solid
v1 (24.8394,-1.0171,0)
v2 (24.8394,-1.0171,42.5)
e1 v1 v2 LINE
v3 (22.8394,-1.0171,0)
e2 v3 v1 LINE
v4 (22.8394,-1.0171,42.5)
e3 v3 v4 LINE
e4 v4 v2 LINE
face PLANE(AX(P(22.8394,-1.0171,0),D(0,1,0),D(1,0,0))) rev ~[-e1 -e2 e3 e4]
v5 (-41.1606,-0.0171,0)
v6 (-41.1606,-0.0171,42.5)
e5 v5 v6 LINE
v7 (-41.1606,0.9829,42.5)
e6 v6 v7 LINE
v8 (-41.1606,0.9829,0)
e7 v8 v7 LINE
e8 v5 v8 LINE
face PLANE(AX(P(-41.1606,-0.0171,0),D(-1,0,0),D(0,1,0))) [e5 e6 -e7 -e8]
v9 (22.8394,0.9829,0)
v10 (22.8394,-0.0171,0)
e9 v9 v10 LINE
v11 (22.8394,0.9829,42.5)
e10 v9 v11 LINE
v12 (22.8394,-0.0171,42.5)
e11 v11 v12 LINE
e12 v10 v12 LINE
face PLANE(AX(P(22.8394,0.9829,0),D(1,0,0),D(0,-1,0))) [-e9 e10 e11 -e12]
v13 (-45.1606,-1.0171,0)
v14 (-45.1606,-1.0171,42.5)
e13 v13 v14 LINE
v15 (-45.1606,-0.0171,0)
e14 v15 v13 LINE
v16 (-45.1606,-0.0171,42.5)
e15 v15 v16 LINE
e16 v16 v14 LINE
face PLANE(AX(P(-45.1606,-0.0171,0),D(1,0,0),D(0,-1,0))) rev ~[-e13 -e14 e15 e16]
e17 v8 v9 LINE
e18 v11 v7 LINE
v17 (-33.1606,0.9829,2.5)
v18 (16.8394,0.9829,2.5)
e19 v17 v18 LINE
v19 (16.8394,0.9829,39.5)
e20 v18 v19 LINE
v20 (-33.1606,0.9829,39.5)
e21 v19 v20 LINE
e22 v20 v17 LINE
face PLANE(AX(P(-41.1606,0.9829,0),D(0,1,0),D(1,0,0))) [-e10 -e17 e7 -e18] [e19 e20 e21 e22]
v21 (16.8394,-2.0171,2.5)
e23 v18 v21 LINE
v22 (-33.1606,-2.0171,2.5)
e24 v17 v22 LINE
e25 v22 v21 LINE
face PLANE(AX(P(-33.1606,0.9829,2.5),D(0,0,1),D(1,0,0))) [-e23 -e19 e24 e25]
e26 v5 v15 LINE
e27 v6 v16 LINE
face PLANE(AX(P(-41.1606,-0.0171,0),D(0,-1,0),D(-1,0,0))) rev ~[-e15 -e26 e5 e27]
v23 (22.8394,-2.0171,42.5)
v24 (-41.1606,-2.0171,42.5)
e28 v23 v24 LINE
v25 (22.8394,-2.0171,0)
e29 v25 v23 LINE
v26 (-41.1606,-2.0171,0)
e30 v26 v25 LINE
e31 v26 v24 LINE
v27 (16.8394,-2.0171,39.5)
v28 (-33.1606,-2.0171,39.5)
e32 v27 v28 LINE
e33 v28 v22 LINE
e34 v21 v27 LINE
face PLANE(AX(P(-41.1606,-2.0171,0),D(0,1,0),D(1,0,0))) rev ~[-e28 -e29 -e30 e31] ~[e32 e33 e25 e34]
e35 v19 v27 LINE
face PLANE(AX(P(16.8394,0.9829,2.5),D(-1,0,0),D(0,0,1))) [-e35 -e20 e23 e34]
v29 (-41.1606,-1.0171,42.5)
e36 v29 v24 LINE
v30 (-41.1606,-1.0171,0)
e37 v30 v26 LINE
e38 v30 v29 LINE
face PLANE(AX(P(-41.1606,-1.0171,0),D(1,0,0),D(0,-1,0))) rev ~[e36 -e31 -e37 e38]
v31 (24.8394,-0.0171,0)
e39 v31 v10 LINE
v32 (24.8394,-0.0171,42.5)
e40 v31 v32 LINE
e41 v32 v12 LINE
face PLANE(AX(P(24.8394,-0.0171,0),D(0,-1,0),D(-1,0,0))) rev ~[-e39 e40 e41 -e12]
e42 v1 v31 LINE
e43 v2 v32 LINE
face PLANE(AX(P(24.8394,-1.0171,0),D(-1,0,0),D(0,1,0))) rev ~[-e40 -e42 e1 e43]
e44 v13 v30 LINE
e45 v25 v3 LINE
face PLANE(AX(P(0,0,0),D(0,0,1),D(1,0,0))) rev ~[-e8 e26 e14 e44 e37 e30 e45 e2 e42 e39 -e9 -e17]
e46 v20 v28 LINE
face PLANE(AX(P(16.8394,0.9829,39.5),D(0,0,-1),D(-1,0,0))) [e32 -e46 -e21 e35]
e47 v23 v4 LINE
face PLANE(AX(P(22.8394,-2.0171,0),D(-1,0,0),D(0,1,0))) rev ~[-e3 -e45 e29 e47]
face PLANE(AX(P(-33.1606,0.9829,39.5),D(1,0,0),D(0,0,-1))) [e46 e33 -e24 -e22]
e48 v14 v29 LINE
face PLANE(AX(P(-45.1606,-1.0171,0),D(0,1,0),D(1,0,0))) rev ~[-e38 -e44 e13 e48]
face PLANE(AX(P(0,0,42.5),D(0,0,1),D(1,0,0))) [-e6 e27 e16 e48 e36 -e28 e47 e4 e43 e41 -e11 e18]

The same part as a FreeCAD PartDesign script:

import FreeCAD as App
import Part
import Sketcher

V = App.Vector

doc = App.newDocument("Part")
body = doc.addObject("PartDesign::Body", "Body")

sketch1 = doc.addObject("Sketcher::SketchObject", "Sketch")
body.addObject(sketch1)
sketch1.AttachmentSupport = (doc.XY_Plane, [""])
sketch1.MapMode = "FlatFace"
sketch1.addGeometry(Part.LineSegment(V(-41.1606, -2.0171, 0), V(22.8394, -2.0171, 0)), False)
sketch1.addGeometry(Part.LineSegment(V(22.8394, -2.0171, 0), V(22.8394, -1.0171, 0)), False)
sketch1.addGeometry(Part.LineSegment(V(22.8394, -1.0171, 0), V(24.8394, -1.0171, 0)), False)
sketch1.addGeometry(Part.LineSegment(V(24.8394, -1.0171, 0), V(24.8394, -0.0171, 0)), False)
sketch1.addGeometry(Part.LineSegment(V(24.8394, -0.0171, 0), V(22.8394, -0.0171, 0)), False)
sketch1.addGeometry(Part.LineSegment(V(22.8394, -0.0171, 0), V(22.8394, 0.9829, 0)), False)
sketch1.addGeometry(Part.LineSegment(V(22.8394, 0.9829, 0), V(-41.1606, 0.9829, 0)), False)
sketch1.addGeometry(Part.LineSegment(V(-41.1606, 0.9829, 0), V(-41.1606, -0.0171, 0)), False)
sketch1.addGeometry(Part.LineSegment(V(-41.1606, -0.0171, 0), V(-45.1606, -0.0171, 0)), False)
sketch1.addGeometry(Part.LineSegment(V(-45.1606, -0.0171, 0), V(-45.1606, -1.0171, 0)), False)
sketch1.addGeometry(Part.LineSegment(V(-45.1606, -1.0171, 0), V(-41.1606, -1.0171, 0)), False)
sketch1.addGeometry(Part.LineSegment(V(-41.1606, -1.0171, 0), V(-41.1606, -2.0171, 0)), False)
sketch1.addConstraint(Sketcher.Constraint("Coincident", 0, 2, 1, 1))
sketch1.addConstraint(Sketcher.Constraint("Coincident", 1, 2, 2, 1))
sketch1.addConstraint(Sketcher.Constraint("Coincident", 2, 2, 3, 1))
sketch1.addConstraint(Sketcher.Constraint("Coincident", 3, 2, 4, 1))
sketch1.addConstraint(Sketcher.Constraint("Coincident", 4, 2, 5, 1))
sketch1.addConstraint(Sketcher.Constraint("Coincident", 5, 2, 6, 1))
sketch1.addConstraint(Sketcher.Constraint("Coincident", 6, 2, 7, 1))
sketch1.addConstraint(Sketcher.Constraint("Coincident", 7, 2, 8, 1))
sketch1.addConstraint(Sketcher.Constraint("Coincident", 8, 2, 9, 1))
sketch1.addConstraint(Sketcher.Constraint("Coincident", 9, 2, 10, 1))
sketch1.addConstraint(Sketcher.Constraint("Coincident", 10, 2, 11, 1))
sketch1.addConstraint(Sketcher.Constraint("Coincident", 11, 2, 0, 1))
sketch1.addConstraint(Sketcher.Constraint("Horizontal", 0))
sketch1.addConstraint(Sketcher.Constraint("Vertical", 1))
sketch1.addConstraint(Sketcher.Constraint("Horizontal", 2))
sketch1.addConstraint(Sketcher.Constraint("Vertical", 3))
sketch1.addConstraint(Sketcher.Constraint("Horizontal", 4))
sketch1.addConstraint(Sketcher.Constraint("Vertical", 5))
sketch1.addConstraint(Sketcher.Constraint("Horizontal", 6))
sketch1.addConstraint(Sketcher.Constraint("Vertical", 7))
sketch1.addConstraint(Sketcher.Constraint("Horizontal", 8))
sketch1.addConstraint(Sketcher.Constraint("Vertical", 9))
sketch1.addConstraint(Sketcher.Constraint("Horizontal", 10))
sketch1.addConstraint(Sketcher.Constraint("Vertical", 11))
sketch1.addConstraint(Sketcher.Constraint("Horizontal", 4, 2, 7, 2))
sketch1.addConstraint(Sketcher.Constraint("Horizontal", 2, 2, 9, 2))
sketch1.addConstraint(Sketcher.Constraint("Vertical", 1, 2, 4, 2))
sketch1.addConstraint(Sketcher.Constraint("Vertical", 7, 2, 10, 2))
sketch1.addConstraint(Sketcher.Constraint("Equal", 1, 3))
sketch1.addConstraint(Sketcher.Constraint("Equal", 3, 5))
sketch1.addConstraint(Sketcher.Constraint("DistanceX", 0, 1, 0, 2, 64.0))
sketch1.addConstraint(Sketcher.Constraint("DistanceX", 2, 1, 2, 2, 2.0))
sketch1.addConstraint(Sketcher.Constraint("DistanceY", 1, 1, 1, 2, 1.0))
sketch1.addConstraint(Sketcher.Constraint("DistanceX", 8, 2, 8, 1, 4.0))
sketch1.addConstraint(Sketcher.Constraint("DistanceY", 0, 2, -1, 1, 2.017))
sketch1.addConstraint(Sketcher.Constraint("DistanceX", -1, 1, 0, 2, 22.8394))
pad1 = doc.addObject("PartDesign::Pad", "Pad")
body.addObject(pad1)
pad1.Profile = sketch1
pad1.Length = 42.5

sketch2 = doc.addObject("Sketcher::SketchObject", "Sketch001")
body.addObject(sketch2)
sketch2.AttachmentSupport = (doc.XZ_Plane, [""])
sketch2.MapMode = "FlatFace"
sketch2.AttachmentOffset = App.Placement(V(0, 0, -0.9829), App.Rotation())
sketch2.addGeometry(Part.LineSegment(V(-33.1606, 39.5, 0), V(16.8394, 39.5, 0)), False)
sketch2.addGeometry(Part.LineSegment(V(16.8394, 39.5, 0), V(16.8394, 2.5, 0)), False)
sketch2.addGeometry(Part.LineSegment(V(16.8394, 2.5, 0), V(-33.1606, 2.5, 0)), False)
sketch2.addGeometry(Part.LineSegment(V(-33.1606, 2.5, 0), V(-33.1606, 39.5, 0)), False)
sketch2.addConstraint(Sketcher.Constraint("Coincident", 0, 2, 1, 1))
sketch2.addConstraint(Sketcher.Constraint("Coincident", 1, 2, 2, 1))
sketch2.addConstraint(Sketcher.Constraint("Coincident", 2, 2, 3, 1))
sketch2.addConstraint(Sketcher.Constraint("Coincident", 3, 2, 0, 1))
sketch2.addConstraint(Sketcher.Constraint("Horizontal", 0))
sketch2.addConstraint(Sketcher.Constraint("Vertical", 1))
sketch2.addConstraint(Sketcher.Constraint("Horizontal", 2))
sketch2.addConstraint(Sketcher.Constraint("Vertical", 3))
sketch2.addConstraint(Sketcher.Constraint("DistanceX", 0, 1, 0, 2, 50.0))
sketch2.addConstraint(Sketcher.Constraint("DistanceY", 1, 2, 1, 1, 37.0))
sketch2.addConstraint(Sketcher.Constraint("DistanceY", -1, 1, 0, 2, 39.5))
sketch2.addConstraint(Sketcher.Constraint("DistanceX", -1, 1, 0, 2, 16.8394))
pocket1 = doc.addObject("PartDesign::Pocket", "Pocket")
body.addObject(pocket1)
pocket1.Profile = sketch2
pocket1.Type = "ThroughAll"
pocket1.Reversed = True

doc.recompute()
